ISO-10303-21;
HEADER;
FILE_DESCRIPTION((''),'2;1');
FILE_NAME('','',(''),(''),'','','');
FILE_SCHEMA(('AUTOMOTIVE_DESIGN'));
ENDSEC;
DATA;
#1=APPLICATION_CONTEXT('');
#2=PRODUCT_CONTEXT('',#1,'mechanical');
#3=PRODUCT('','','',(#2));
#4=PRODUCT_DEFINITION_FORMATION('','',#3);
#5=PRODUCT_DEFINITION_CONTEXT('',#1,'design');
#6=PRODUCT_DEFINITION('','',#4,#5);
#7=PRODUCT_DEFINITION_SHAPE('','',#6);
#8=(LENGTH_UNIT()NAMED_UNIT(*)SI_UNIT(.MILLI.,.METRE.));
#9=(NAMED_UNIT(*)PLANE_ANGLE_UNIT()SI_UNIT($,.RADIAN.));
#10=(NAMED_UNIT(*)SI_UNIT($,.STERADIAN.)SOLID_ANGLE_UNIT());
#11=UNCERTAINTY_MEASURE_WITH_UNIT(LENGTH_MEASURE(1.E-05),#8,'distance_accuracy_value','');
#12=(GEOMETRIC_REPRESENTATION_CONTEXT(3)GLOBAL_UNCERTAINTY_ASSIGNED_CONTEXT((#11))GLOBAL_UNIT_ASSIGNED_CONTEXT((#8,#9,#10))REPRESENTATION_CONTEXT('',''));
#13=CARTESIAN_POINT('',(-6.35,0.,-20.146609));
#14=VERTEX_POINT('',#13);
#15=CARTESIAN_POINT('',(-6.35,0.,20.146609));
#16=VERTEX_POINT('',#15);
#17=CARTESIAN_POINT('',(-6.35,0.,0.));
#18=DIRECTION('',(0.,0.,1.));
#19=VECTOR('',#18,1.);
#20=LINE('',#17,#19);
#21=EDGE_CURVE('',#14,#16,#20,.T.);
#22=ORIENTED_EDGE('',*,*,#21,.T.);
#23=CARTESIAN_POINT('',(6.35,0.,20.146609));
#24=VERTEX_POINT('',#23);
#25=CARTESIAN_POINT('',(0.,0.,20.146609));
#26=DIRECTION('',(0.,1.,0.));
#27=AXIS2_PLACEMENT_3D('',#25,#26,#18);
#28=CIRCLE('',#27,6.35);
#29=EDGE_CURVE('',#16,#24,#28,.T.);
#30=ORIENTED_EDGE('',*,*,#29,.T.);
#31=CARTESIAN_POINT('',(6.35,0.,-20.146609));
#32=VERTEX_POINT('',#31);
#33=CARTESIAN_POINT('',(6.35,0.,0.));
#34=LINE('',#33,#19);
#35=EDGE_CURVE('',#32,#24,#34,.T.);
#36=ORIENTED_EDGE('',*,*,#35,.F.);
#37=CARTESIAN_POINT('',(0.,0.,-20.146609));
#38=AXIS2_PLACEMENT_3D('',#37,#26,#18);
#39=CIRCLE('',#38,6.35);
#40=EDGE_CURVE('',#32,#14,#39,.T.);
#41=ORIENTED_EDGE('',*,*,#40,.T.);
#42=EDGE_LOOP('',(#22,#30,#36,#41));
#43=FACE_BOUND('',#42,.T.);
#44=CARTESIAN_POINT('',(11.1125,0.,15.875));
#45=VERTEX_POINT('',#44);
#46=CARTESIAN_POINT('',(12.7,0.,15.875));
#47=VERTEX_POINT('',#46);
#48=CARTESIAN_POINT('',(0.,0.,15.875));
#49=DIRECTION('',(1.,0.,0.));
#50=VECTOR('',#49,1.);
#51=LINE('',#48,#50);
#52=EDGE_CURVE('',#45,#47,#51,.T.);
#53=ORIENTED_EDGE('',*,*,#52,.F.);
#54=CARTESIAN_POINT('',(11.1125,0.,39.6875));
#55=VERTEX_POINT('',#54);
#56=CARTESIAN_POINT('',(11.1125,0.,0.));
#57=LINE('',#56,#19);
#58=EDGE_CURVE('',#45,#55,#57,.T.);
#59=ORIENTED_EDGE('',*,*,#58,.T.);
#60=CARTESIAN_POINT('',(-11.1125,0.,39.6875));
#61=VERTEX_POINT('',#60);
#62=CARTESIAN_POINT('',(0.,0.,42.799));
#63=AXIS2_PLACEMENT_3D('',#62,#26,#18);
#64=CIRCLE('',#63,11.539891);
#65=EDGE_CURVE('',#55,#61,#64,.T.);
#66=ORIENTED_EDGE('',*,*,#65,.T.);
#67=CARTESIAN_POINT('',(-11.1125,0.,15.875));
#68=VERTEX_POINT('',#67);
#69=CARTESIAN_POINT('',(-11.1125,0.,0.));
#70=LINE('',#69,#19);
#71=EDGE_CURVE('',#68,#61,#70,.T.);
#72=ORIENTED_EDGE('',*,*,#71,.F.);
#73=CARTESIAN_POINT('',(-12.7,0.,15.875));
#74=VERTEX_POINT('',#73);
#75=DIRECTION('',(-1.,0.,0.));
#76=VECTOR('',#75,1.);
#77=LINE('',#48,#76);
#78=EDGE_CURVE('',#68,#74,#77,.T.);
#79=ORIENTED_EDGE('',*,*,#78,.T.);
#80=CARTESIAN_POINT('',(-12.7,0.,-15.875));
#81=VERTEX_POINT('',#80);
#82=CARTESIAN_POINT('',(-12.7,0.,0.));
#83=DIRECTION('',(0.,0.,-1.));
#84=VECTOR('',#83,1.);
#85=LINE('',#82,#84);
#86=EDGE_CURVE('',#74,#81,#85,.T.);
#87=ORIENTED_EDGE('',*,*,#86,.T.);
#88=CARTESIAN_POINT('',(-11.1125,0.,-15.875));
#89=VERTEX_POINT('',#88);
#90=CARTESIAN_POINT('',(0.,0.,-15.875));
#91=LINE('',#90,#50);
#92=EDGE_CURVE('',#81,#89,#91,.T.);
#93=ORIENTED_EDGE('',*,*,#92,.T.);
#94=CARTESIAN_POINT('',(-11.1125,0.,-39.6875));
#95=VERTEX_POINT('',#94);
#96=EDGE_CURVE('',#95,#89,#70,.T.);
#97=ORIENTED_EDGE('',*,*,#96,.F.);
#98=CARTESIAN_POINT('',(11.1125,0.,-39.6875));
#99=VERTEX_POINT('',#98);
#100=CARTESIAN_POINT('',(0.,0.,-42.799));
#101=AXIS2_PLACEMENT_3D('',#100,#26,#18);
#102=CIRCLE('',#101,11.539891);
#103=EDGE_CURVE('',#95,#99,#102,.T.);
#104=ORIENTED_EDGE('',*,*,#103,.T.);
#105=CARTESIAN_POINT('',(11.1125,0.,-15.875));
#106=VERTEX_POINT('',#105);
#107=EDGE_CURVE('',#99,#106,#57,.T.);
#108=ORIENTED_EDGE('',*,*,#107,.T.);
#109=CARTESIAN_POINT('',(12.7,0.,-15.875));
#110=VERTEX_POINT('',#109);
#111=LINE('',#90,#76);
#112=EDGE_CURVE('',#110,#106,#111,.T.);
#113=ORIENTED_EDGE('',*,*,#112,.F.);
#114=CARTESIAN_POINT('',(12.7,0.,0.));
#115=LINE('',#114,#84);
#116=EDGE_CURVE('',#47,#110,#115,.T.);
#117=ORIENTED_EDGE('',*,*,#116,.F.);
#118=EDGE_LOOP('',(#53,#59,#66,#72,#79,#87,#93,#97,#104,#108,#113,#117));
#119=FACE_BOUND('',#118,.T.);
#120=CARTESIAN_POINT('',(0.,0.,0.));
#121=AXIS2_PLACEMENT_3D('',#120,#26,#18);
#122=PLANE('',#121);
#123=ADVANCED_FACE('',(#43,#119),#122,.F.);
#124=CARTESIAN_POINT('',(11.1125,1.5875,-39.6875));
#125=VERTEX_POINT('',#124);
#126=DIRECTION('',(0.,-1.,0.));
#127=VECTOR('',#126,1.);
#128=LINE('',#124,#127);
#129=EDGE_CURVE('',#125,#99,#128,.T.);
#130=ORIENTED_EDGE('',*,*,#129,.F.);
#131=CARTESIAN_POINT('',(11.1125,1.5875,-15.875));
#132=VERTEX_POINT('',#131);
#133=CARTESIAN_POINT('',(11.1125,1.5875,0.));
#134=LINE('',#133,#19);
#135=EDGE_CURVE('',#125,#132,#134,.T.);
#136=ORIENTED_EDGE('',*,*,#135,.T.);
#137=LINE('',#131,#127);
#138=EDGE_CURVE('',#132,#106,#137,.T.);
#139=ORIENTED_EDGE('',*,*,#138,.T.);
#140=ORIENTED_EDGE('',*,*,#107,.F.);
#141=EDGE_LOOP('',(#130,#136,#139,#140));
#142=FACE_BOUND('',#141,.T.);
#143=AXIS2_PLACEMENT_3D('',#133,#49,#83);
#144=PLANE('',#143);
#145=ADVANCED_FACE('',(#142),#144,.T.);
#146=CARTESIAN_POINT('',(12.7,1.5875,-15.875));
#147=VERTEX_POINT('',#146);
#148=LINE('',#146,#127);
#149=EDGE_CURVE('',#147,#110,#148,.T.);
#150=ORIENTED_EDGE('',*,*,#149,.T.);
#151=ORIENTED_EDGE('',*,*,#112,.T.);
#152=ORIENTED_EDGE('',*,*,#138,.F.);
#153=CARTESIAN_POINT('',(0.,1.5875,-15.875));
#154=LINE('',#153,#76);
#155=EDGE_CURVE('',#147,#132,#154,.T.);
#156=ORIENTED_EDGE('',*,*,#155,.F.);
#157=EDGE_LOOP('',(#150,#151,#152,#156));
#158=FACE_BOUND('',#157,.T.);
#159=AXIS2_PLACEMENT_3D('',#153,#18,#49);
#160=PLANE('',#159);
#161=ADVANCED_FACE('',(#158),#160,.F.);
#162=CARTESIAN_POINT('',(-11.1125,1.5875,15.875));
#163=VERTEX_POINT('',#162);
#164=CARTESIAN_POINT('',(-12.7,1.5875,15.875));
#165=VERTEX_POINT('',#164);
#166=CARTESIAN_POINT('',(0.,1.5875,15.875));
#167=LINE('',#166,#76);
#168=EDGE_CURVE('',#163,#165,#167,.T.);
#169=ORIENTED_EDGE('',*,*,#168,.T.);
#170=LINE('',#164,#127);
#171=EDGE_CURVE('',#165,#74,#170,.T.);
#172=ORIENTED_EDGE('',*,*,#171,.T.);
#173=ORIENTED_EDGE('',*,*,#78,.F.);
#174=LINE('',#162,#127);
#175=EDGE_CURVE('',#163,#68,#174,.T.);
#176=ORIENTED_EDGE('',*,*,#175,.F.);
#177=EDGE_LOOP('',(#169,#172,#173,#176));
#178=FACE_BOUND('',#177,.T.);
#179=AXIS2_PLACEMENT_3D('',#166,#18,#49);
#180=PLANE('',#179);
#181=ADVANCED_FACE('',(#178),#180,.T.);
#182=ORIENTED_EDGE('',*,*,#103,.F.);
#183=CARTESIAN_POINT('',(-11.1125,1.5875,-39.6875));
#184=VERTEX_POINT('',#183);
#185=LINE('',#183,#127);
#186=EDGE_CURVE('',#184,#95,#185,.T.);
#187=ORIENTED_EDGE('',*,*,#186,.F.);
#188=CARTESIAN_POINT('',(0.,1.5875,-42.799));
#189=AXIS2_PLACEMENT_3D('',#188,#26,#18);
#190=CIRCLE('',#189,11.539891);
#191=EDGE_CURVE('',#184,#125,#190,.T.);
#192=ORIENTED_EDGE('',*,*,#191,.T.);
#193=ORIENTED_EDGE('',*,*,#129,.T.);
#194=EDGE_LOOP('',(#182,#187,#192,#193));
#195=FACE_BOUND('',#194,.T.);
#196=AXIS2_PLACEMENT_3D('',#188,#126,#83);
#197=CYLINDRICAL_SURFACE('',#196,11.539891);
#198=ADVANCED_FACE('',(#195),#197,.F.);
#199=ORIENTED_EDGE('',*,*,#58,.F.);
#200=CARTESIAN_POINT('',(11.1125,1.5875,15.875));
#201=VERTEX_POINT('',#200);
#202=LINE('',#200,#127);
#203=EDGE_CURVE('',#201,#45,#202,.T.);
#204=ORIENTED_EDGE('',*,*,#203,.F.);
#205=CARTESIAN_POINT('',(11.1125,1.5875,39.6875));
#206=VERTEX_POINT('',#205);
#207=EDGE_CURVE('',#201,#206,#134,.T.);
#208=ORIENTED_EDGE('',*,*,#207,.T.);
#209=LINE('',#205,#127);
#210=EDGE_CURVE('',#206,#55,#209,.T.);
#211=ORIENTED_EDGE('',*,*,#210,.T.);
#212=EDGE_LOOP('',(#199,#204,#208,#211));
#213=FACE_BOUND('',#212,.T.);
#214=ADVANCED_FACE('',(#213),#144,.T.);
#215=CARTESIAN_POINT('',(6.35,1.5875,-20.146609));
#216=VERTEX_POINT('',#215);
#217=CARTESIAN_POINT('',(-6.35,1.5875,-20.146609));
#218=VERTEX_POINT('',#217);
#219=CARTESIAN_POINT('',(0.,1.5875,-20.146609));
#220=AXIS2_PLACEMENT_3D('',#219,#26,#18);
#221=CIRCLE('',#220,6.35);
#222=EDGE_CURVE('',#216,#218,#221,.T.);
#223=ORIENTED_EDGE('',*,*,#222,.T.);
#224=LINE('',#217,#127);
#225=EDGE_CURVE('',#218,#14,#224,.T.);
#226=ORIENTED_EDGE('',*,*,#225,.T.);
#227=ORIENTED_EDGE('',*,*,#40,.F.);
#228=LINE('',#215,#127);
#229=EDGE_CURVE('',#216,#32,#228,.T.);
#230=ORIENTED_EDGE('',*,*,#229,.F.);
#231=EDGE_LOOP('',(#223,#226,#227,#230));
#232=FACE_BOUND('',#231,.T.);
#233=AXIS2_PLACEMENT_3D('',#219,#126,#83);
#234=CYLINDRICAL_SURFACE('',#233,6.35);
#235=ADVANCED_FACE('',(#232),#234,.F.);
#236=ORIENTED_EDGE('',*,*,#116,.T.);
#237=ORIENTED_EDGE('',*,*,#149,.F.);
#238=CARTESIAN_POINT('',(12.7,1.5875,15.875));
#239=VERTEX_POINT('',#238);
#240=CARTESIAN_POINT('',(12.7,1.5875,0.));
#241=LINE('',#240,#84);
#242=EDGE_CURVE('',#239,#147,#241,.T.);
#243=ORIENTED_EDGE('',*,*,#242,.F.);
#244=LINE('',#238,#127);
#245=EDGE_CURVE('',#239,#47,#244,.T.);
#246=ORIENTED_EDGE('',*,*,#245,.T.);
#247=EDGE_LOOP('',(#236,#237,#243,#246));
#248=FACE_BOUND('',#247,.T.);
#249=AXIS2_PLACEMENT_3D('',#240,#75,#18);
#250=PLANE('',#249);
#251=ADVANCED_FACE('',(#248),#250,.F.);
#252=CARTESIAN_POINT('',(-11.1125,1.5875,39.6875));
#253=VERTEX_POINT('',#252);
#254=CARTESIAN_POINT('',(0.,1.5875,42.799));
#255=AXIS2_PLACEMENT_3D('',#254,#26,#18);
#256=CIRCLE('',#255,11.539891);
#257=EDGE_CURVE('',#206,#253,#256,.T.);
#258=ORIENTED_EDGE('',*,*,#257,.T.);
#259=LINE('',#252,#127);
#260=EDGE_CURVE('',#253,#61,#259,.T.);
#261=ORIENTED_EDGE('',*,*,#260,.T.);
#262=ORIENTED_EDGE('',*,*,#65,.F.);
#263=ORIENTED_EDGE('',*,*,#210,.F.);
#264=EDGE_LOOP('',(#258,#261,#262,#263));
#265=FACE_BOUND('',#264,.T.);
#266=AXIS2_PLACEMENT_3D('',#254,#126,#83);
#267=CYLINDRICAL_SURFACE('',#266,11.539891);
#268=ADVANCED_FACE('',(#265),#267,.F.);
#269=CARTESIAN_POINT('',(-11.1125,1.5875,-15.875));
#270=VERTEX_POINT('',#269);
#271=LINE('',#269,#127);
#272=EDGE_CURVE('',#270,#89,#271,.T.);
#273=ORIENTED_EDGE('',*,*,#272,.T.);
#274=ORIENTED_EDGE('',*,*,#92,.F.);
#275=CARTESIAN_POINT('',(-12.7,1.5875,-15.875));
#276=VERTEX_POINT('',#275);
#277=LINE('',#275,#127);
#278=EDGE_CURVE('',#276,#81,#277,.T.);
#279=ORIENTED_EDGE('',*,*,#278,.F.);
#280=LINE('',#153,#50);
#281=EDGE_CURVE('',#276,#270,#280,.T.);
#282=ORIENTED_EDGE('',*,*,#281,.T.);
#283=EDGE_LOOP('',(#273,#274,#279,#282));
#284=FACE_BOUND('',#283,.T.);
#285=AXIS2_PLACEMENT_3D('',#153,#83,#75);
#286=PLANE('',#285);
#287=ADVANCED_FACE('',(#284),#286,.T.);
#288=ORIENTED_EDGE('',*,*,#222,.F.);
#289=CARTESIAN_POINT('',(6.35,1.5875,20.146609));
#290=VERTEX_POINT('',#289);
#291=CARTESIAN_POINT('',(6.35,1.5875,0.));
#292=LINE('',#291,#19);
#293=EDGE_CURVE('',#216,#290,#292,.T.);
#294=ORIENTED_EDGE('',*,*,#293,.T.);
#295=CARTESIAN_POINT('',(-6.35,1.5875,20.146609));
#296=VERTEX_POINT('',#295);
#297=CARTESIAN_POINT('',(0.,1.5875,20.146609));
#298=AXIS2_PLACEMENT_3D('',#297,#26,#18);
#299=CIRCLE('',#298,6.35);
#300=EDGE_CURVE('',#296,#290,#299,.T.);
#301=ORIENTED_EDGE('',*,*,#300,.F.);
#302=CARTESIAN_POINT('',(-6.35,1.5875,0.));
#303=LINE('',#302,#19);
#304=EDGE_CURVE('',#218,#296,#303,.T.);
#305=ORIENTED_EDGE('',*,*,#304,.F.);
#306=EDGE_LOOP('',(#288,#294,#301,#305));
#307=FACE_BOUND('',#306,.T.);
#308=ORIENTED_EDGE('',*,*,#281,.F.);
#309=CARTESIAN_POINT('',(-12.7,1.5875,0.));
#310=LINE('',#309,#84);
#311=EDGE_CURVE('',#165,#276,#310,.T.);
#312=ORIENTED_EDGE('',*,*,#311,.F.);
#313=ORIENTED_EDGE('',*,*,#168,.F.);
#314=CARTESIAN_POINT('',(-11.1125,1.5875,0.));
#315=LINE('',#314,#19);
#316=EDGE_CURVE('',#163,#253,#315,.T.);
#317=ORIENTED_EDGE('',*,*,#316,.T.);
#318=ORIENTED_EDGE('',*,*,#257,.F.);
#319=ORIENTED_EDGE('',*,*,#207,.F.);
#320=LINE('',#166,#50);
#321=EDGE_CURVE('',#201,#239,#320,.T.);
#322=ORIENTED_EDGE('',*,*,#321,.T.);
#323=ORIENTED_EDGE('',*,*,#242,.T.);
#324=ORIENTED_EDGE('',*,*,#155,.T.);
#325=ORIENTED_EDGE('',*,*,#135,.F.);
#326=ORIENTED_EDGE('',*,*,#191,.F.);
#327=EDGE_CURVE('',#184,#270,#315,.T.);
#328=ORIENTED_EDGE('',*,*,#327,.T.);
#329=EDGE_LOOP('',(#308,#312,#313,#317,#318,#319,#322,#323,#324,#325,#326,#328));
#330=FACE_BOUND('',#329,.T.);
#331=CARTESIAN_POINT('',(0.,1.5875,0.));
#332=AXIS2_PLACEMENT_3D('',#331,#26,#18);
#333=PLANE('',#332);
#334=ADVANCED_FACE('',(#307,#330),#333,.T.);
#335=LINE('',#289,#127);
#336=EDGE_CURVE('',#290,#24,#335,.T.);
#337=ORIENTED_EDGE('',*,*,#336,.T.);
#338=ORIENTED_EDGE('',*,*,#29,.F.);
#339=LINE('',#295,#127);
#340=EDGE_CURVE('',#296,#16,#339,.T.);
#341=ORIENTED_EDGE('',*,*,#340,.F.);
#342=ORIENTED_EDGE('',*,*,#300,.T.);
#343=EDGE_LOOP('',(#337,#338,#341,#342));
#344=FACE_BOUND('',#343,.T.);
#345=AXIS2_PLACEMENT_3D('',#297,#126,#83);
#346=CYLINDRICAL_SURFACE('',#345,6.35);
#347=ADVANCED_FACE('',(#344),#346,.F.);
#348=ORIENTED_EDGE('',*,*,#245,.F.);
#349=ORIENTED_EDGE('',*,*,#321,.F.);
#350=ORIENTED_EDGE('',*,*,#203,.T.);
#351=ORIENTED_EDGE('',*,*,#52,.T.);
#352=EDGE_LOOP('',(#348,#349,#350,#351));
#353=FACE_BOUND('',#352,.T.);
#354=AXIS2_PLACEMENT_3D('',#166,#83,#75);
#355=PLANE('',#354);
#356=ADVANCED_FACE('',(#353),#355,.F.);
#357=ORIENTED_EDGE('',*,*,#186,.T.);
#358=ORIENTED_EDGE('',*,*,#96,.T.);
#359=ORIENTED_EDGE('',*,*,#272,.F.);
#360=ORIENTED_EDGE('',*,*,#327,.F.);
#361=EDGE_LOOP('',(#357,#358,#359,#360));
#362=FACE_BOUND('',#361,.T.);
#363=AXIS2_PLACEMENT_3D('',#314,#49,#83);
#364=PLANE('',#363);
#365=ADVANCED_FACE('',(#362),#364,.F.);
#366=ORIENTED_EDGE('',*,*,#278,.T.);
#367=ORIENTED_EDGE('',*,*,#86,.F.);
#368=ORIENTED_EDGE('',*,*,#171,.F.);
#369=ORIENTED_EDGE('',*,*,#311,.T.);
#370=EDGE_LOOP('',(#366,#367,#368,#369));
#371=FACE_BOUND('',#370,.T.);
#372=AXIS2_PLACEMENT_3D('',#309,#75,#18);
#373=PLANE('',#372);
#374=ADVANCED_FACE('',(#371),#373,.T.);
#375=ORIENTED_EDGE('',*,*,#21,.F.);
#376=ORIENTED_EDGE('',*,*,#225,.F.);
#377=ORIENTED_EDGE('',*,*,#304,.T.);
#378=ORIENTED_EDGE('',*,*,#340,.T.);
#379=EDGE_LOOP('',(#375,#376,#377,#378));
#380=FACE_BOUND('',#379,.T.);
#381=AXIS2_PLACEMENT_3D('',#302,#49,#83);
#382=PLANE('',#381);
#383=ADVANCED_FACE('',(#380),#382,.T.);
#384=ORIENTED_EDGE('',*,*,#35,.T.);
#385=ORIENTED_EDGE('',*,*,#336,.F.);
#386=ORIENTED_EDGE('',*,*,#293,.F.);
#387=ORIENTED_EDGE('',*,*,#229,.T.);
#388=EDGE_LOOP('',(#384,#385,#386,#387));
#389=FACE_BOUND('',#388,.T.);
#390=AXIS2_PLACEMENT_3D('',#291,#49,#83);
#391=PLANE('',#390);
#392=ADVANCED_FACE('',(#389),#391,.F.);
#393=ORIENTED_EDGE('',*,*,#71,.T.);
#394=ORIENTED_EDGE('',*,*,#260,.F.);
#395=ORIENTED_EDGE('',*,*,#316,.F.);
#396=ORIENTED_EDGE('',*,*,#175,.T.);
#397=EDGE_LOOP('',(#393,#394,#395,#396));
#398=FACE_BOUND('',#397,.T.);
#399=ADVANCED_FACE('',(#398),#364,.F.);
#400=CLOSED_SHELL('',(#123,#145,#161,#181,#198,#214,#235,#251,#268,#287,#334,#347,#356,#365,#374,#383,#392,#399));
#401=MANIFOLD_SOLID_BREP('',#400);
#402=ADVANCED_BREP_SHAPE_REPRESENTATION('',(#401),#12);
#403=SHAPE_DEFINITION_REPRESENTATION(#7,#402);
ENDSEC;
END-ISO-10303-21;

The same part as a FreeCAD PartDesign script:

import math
import FreeCAD as App
import Part
import Sketcher
Q = App.Units.Quantity

doc = App.newDocument("Part")
body = doc.addObject("PartDesign::Body", "Body")

# Sketch on XZ plane
sketch1 = body.newObject("Sketcher::SketchObject", "Sketch")
sketch1.AttachmentSupport = (doc.getObject("XZ_Plane"), [""])
sketch1.MapMode = "FlatFace"
sketch1.addGeometry(Part.LineSegment(App.Vector(11.1, 39.7, 0), App.Vector(11.1, 15.9, 0)), False)
sketch1.addGeometry(Part.LineSegment(App.Vector(11.1, 15.9, 0), App.Vector(12.7, 15.9, 0)), False)
sketch1.addGeometry(Part.LineSegment(App.Vector(12.7, 15.9, 0), App.Vector(12.7, -15.9, 0)), False)
sketch1.addGeometry(Part.LineSegment(App.Vector(12.7, -15.9, 0), App.Vector(11.1, -15.9, 0)), False)
sketch1.addGeometry(Part.LineSegment(App.Vector(11.1, -15.9, 0), App.Vector(11.1, -39.7, 0)), False)
sketch1.addGeometry(Part.ArcOfCircle(Part.Circle(App.Vector(0, -42.8, 0), App.Vector(0, 0, 1), 11.5), math.radians(16), math.radians(164)), False)
sketch1.addGeometry(Part.LineSegment(App.Vector(-11.1, -39.7, 0), App.Vector(-11.1, -15.9, 0)), False)
sketch1.addGeometry(Part.LineSegment(App.Vector(-11.1, -15.9, 0), App.Vector(-12.7, -15.9, 0)), False)
sketch1.addGeometry(Part.LineSegment(App.Vector(-12.7, -15.9, 0), App.Vector(-12.7, 15.9, 0)), False)
sketch1.addGeometry(Part.LineSegment(App.Vector(-12.7, 15.9, 0), App.Vector(-11.1, 15.9, 0)), False)
sketch1.addGeometry(Part.LineSegment(App.Vector(-11.1, 15.9, 0), App.Vector(-11.1, 39.7, 0)), False)
sketch1.addGeometry(Part.ArcOfCircle(Part.Circle(App.Vector(0, 42.8, 0), App.Vector(0, 0, 1), 11.5), math.radians(-164), math.radians(-16)), False)
sketch1.addGeometry(Part.LineSegment(App.Vector(-6.3, 20.1, 0), App.Vector(-6.3, -20.1, 0)), False)
sketch1.addGeometry(Part.ArcOfCircle(Part.Circle(App.Vector(0, -20.1, 0), App.Vector(0, 0, 1), 6.3), math.radians(180), math.radians(360)), False)
sketch1.addGeometry(Part.LineSegment(App.Vector(6.3, -20.1, 0), App.Vector(6.3, 20.1, 0)), False)
sketch1.addGeometry(Part.ArcOfCircle(Part.Circle(App.Vector(0, 20.1, 0), App.Vector(0, 0, 1), 6.3), math.radians(0), math.radians(180)), False)
sketch1.addConstraint(Sketcher.Constraint("Coincident", 0, 2, 1, 1))
sketch1.addConstraint(Sketcher.Constraint("Coincident", 1, 2, 2, 1))
sketch1.addConstraint(Sketcher.Constraint("Coincident", 2, 2, 3, 1))
sketch1.addConstraint(Sketcher.Constraint("Coincident", 3, 2, 4, 1))
sketch1.addConstraint(Sketcher.Constraint("Coincident", 4, 2, 5, 1))
sketch1.addConstraint(Sketcher.Constraint("Coincident", 5, 2, 6, 1))
sketch1.addConstraint(Sketcher.Constraint("Coincident", 6, 2, 7, 1))
sketch1.addConstraint(Sketcher.Constraint("Coincident", 7, 2, 8, 1))
sketch1.addConstraint(Sketcher.Constraint("Coincident", 8, 2, 9, 1))
sketch1.addConstraint(Sketcher.Constraint("Coincident", 9, 2, 10, 1))
sketch1.addConstraint(Sketcher.Constraint("Coincident", 10, 2, 11, 1))
sketch1.addConstraint(Sketcher.Constraint("Coincident", 11, 2, 0, 1))
sketch1.addConstraint(Sketcher.Constraint("Tangent", 12, 2, 13, 1))
sketch1.addConstraint(Sketcher.Constraint("Tangent", 13, 2, 14, 1))
sketch1.addConstraint(Sketcher.Constraint("Tangent", 14, 2, 15, 1))
sketch1.addConstraint(Sketcher.Constraint("Tangent", 15, 2, 12, 1))
sketch1.addConstraint(Sketcher.Constraint("Vertical", 0))
sketch1.addConstraint(Sketcher.Constraint("Horizontal", 1))
sketch1.addConstraint(Sketcher.Constraint("Vertical", 2))
sketch1.addConstraint(Sketcher.Constraint("Horizontal", 3))
sketch1.addConstraint(Sketcher.Constraint("Vertical", 4))
sketch1.addConstraint(Sketcher.Constraint("Vertical", 6))
sketch1.addConstraint(Sketcher.Constraint("Horizontal", 7))
sketch1.addConstraint(Sketcher.Constraint("Vertical", 8))
sketch1.addConstraint(Sketcher.Constraint("Horizontal", 9))
sketch1.addConstraint(Sketcher.Constraint("Vertical", 10))
sketch1.addConstraint(Sketcher.Constraint("Vertical", 12))
sketch1.addConstraint(Sketcher.Constraint("Vertical", 14))
sketch1.addConstraint(Sketcher.Constraint("Equal", 5, 11))
sketch1.addConstraint(Sketcher.Constraint("Symmetric", 5, 3, 11, 3, -1, 1))
sketch1.addConstraint(Sketcher.Constraint("Symmetric", 13, 3, 15, 3, -1, 1))
sketch1.addConstraint(Sketcher.Constraint("Symmetric", 0, 2, 6, 2, -1, 1))
sketch1.addConstraint(Sketcher.Constraint("Symmetric", 2, 2, 8, 2, -1, 1))
sketch1.addConstraint(Sketcher.Constraint("Symmetric", 4, 2, 5, 2, -2))
sketch1.addConstraint(Sketcher.Constraint("Symmetric", 0, 2, 9, 2, -2))
sketch1.addConstraint(Sketcher.Constraint("Radius", 13, Q("0.25 in")))
sketch1.addConstraint(Sketcher.Constraint("DistanceX", 7, 2, 2, 2, Q("1 in")))
sketch1.addConstraint(Sketcher.Constraint("DistanceY", 2, 2, 2, 1, Q("1.25 in")))
sketch1.addConstraint(Sketcher.Constraint("DistanceX", 1, 1, 1, 2, Q("0.0625 in")))
sketch1.addConstraint(Sketcher.Constraint("DistanceY", 0, 2, 0, 1, Q("0.9375 in")))
sketch1.addConstraint(Sketcher.Constraint("DistanceY", 5, 3, 11, 3, Q("3.37 in")))
sketch1.addConstraint(Sketcher.Constraint("DistanceY", 12, 2, 12, 1, 40.293218))
pad1 = body.newObject("PartDesign::Pad", "Pad")
pad1.Profile = sketch1
pad1.Length = Q("0.0625 in")
pad1.Reversed = True

doc.recompute()
